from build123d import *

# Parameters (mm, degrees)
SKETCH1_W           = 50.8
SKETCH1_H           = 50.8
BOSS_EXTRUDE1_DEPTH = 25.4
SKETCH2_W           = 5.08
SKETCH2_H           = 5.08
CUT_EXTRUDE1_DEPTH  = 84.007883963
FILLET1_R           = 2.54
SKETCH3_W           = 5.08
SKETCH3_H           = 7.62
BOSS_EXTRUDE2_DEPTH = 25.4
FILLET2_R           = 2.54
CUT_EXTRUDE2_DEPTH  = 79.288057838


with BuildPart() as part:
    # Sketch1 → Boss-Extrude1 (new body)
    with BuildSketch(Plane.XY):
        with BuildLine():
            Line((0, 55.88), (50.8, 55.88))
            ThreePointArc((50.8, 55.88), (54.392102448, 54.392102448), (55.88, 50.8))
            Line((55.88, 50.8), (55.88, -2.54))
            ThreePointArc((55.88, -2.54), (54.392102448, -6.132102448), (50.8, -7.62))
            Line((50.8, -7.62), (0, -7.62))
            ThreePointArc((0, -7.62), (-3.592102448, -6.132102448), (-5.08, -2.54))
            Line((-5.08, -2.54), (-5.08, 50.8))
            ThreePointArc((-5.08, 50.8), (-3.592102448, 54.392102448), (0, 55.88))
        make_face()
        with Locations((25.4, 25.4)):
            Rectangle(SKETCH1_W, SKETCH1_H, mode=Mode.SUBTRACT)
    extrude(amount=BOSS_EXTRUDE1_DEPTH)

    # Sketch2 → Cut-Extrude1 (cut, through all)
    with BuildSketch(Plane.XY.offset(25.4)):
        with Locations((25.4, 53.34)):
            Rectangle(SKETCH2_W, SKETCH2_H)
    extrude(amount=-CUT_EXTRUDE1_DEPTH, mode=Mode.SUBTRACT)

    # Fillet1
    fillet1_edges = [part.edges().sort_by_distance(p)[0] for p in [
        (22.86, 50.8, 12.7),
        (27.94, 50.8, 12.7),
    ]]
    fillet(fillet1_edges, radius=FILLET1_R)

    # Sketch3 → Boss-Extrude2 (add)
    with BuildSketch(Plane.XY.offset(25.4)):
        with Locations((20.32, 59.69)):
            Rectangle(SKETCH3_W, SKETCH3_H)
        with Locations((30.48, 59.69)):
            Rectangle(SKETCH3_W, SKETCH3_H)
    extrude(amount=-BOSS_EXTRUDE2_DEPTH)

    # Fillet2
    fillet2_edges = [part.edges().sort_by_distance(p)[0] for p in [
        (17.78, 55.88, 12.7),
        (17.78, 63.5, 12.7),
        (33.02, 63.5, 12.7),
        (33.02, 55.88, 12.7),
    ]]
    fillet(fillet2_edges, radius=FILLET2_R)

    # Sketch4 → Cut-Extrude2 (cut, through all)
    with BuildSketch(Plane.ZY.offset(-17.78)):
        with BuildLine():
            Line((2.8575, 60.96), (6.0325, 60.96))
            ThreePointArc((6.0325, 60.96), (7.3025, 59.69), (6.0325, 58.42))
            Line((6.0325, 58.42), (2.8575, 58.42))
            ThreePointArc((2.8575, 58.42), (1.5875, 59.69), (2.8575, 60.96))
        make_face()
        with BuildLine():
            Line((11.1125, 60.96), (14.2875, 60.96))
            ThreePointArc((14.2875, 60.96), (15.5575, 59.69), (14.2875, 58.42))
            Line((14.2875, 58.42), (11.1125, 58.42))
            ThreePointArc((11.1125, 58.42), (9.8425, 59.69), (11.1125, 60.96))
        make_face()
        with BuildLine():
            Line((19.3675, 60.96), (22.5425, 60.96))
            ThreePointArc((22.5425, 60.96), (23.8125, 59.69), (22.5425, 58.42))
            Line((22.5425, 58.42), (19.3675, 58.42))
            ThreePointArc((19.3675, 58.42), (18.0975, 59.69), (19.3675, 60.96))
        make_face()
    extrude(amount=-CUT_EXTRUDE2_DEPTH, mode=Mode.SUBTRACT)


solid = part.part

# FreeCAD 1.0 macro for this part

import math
import FreeCAD as App
import Part
import Sketcher

V = App.Vector
Q = App.Units.Quantity


def edges_at(feature, points):
    """Names of the edges that pass closest to the given points."""
    edges = feature.Shape.Edges
    near = lambda p: min(range(len(edges)), key=lambda i: edges[i].distToShape(Part.Vertex(*p))[0])
    return sorted({f"Edge{near(p) + 1}" for p in points})

doc = App.newDocument("Part")
params = doc.addObject("Spreadsheet::Sheet", "Params")
for row, (alias, value) in enumerate([
    ("sketch1_radius", "0.2 in"),
    ("sketch1_width", "2 in"),
    ("sketch1_height", "2.1 in"),
    ("pad1_length", "1 in"),
    ("sketch2_width", "0.2 in"),
    ("fillet_radius", "0.1 in"),
    ("sketch3_width", "0.2 in"),
    ("sketch3_height", "0.3 in"),
    ("pad2_length", "1 in"),
    ("fillet2_radius", "0.1 in"),
    ("sketch4_radius", "0.05 in"),
    ("sketch4_height", "0.125 in"),
], start=1):
    params.set(f"A{row}", alias)
    params.set(f"B{row}", "=" + value)
    params.setAlias(f"B{row}", alias)

body = doc.addObject("PartDesign::Body", "Body")

# Sketch on XY plane
sketch1 = doc.addObject("Sketcher::SketchObject", "Sketch")
body.addObject(sketch1)
sketch1.AttachmentSupport = (doc.XY_Plane, [""])
sketch1.MapMode = "FlatFace"
sketch1.addGeometry([
    Part.LineSegment(V(51, 56, 0), V(0, 56, 0)),  # 0
    Part.ArcOfCircle(Part.Circle(V(0, 51, 0), V(0, 0, 1), 5), math.radians(90), math.radians(180)),  # 1
    Part.LineSegment(V(-5, 51, 0), V(-5, -3, 0)),  # 2
    Part.ArcOfCircle(Part.Circle(V(0, -3, 0), V(0, 0, 1), 5), math.radians(-180), math.radians(-90)),  # 3
    Part.LineSegment(V(0, -8, 0), V(51, -8, 0)),  # 4
    Part.ArcOfCircle(Part.Circle(V(51, -3, 0), V(0, 0, 1), 5), math.radians(-90), math.radians(0)),  # 5
    Part.LineSegment(V(56, -3, 0), V(56, 51, 0)),  # 6
    Part.ArcOfCircle(Part.Circle(V(51, 51, 0), V(0, 0, 1), 5), math.radians(0), math.radians(90)),  # 7
    Part.LineSegment(V(0, 0, 0), V(0, 51, 0)),  # 8
    Part.LineSegment(V(0, 51, 0), V(51, 51, 0)),  # 9
    Part.LineSegment(V(51, 51, 0), V(51, 0, 0)),  # 10
    Part.LineSegment(V(51, 0, 0), V(0, 0, 0)),  # 11
], False)
sketch1.addConstraint([
    Sketcher.Constraint("Tangent", 0, 2, 1, 1),
    Sketcher.Constraint("Tangent", 1, 2, 2, 1),
    Sketcher.Constraint("Tangent", 2, 2, 3, 1),
    Sketcher.Constraint("Tangent", 3, 2, 4, 1),
    Sketcher.Constraint("Tangent", 4, 2, 5, 1),
    Sketcher.Constraint("Tangent", 5, 2, 6, 1),
    Sketcher.Constraint("Tangent", 6, 2, 7, 1),
    Sketcher.Constraint("Tangent", 7, 2, 0, 1),
    Sketcher.Constraint("Coincident", 8, 2, 9, 1),
    Sketcher.Constraint("Coincident", 9, 2, 10, 1),
    Sketcher.Constraint("Coincident", 10, 2, 11, 1),
    Sketcher.Constraint("Coincident", 11, 2, 8, 1),
    Sketcher.Constraint("Horizontal", 0),
    Sketcher.Constraint("Vertical", 2),
    Sketcher.Constraint("Horizontal", 4),
    Sketcher.Constraint("Vertical", 6),
    Sketcher.Constraint("Vertical", 8),
    Sketcher.Constraint("Horizontal", 9),
    Sketcher.Constraint("Vertical", 10),
    Sketcher.Constraint("Horizontal", 11),
    Sketcher.Constraint("Coincident", 11, 2, -1, 1),
    Sketcher.Constraint("Coincident", 8, 2, 1, 3),
    Sketcher.Constraint("Coincident", 9, 2, 7, 3),
    Sketcher.Constraint("Equal", 1, 3),
    Sketcher.Constraint("Equal", 3, 5),
    Sketcher.Constraint("Equal", 11, 8),
    Sketcher.Constraint("Radius", 1, Q("0.2 in")),
    Sketcher.Constraint("DistanceX", 0, 2, 0, 1, Q("2 in")),
    Sketcher.Constraint("DistanceY", 2, 2, 2, 1, Q("2.1 in")),
])
sketch1.setExpression("Constraints[26]", "Params.sketch1_radius")
sketch1.setExpression("Constraints[27]", "Params.sketch1_width")
sketch1.setExpression("Constraints[28]", "Params.sketch1_height")
pad1 = doc.addObject("PartDesign::Pad", "Pad")
body.addObject(pad1)
pad1.Profile = sketch1
pad1.setExpression("Length", "Params.pad1_length")

# Sketch on XY plane
sketch2 = doc.addObject("Sketcher::SketchObject", "Sketch001")
body.addObject(sketch2)
sketch2.AttachmentSupport = (doc.XY_Plane, [""])
sketch2.MapMode = "FlatFace"
sketch2.AttachmentOffset = App.Placement(V(0, 0, 1 * 25.4), App.Rotation())
sketch2.addGeometry([
    Part.LineSegment(V(23, 56, 0), V(23, 51, 0)),
    Part.LineSegment(V(23, 51, 0), V(28, 51, 0)),
    Part.LineSegment(V(28, 51, 0), V(28, 56, 0)),
    Part.LineSegment(V(28, 56, 0), V(23, 56, 0)),
], False)
sketch2.addConstraint([
    Sketcher.Constraint("Coincident", 0, 2, 1, 1),
    Sketcher.Constraint("Coincident", 1, 2, 2, 1),
    Sketcher.Constraint("Coincident", 2, 2, 3, 1),
    Sketcher.Constraint("Coincident", 3, 2, 0, 1),
    Sketcher.Constraint("Vertical", 0),
    Sketcher.Constraint("Horizontal", 1),
    Sketcher.Constraint("Vertical", 2),
    Sketcher.Constraint("Horizontal", 3),
    Sketcher.Constraint("Equal", 3, 0),
    Sketcher.Constraint("DistanceX", 1, 1, 1, 2, Q("0.2 in")),
    Sketcher.Constraint("DistanceY", -1, 1, 0, 2, Q("2 in")),
    Sketcher.Constraint("DistanceX", -1, 1, 0, 2, Q("0.9 in")),
])
sketch2.setExpression("Constraints[9]", "Params.sketch2_width")
pocket1 = doc.addObject("PartDesign::Pocket", "Pocket")
body.addObject(pocket1)
pocket1.Profile = sketch2
pocket1.Type = "ThroughAll"
doc.recompute()

fillet = doc.addObject("PartDesign::Fillet", "Fillet")
body.addObject(fillet)
fillet.Base = (pocket1, edges_at(pocket1, [(22.86, 50.8, 12.7), (27.94, 50.8, 12.7)]))
fillet.setExpression("Radius", "Params.fillet_radius")

# Sketch on XY plane
sketch3 = doc.addObject("Sketcher::SketchObject", "Sketch002")
body.addObject(sketch3)
sketch3.AttachmentSupport = (doc.XY_Plane, [""])
sketch3.MapMode = "FlatFace"
sketch3.AttachmentOffset = App.Placement(V(0, 0, 1 * 25.4), App.Rotation())
sketch3.addGeometry([
    Part.LineSegment(V(18, 64, 0), V(18, 56, 0)),  # 0
    Part.LineSegment(V(18, 56, 0), V(23, 56, 0)),  # 1
    Part.LineSegment(V(23, 56, 0), V(23, 64, 0)),  # 2
    Part.LineSegment(V(23, 64, 0), V(18, 64, 0)),  # 3
    Part.LineSegment(V(28, 64, 0), V(28, 56, 0)),  # 4
    Part.LineSegment(V(28, 56, 0), V(33, 56, 0)),  # 5
    Part.LineSegment(V(33, 56, 0), V(33, 64, 0)),  # 6
    Part.LineSegment(V(33, 64, 0), V(28, 64, 0)),  # 7
], False)
sketch3.addConstraint([
    Sketcher.Constraint("Coincident", 0, 2, 1, 1),
    Sketcher.Constraint("Coincident", 1, 2, 2, 1),
    Sketcher.Constraint("Coincident", 2, 2, 3, 1),
    Sketcher.Constraint("Coincident", 3, 2, 0, 1),
    Sketcher.Constraint("Coincident", 4, 2, 5, 1),
    Sketcher.Constraint("Coincident", 5, 2, 6, 1),
    Sketcher.Constraint("Coincident", 6, 2, 7, 1),
    Sketcher.Constraint("Coincident", 7, 2, 4, 1),
    Sketcher.Constraint("Vertical", 0),
    Sketcher.Constraint("Horizontal", 1),
    Sketcher.Constraint("Vertical", 2),
    Sketcher.Constraint("Horizontal", 3),
    Sketcher.Constraint("Vertical", 4),
    Sketcher.Constraint("Horizontal", 5),
    Sketcher.Constraint("Vertical", 6),
    Sketcher.Constraint("Horizontal", 7),
    Sketcher.Constraint("Horizontal", 1, 2, 4, 2),
    Sketcher.Constraint("Horizontal", 3, 2, 6, 2),
    Sketcher.Constraint("Equal", 3, 5),
    Sketcher.Constraint("DistanceX", 1, 1, 1, 2, Q("0.2 in")),
    Sketcher.Constraint("DistanceY", 0, 2, 0, 1, Q("0.3 in")),
    Sketcher.Constraint("DistanceX", -1, 1, 0, 2, Q("0.7 in")),
    Sketcher.Constraint("DistanceY", -1, 1, 0, 2, Q("2.2 in")),
    Sketcher.Constraint("DistanceX", -1, 1, 4, 2, Q("1.1 in")),
])
sketch3.setExpression("Constraints[19]", "Params.sketch3_width")
sketch3.setExpression("Constraints[20]", "Params.sketch3_height")
pad2 = doc.addObject("PartDesign::Pad", "Pad001")
body.addObject(pad2)
pad2.Profile = sketch3
pad2.setExpression("Length", "Params.pad2_length")
pad2.Reversed = True
doc.recompute()

fillet2 = doc.addObject("PartDesign::Fillet", "Fillet001")
body.addObject(fillet2)
fillet2.Base = (pad2, edges_at(pad2, [
    (17.78, 55.88, 12.7),
    (17.78, 63.5, 12.7),
    (33.02, 63.5, 12.7),
    (33.02, 55.88, 12.7),
]))
fillet2.setExpression("Radius", "Params.fillet2_radius")

# Sketch on YZ plane
sketch4 = doc.addObject("Sketcher::SketchObject", "Sketch003")
body.addObject(sketch4)
sketch4.AttachmentSupport = (doc.YZ_Plane, [""])
sketch4.MapMode = "FlatFace"
sketch4.AttachmentOffset = App.Placement(V(0, 0, 0.7 * 25.4), App.Rotation())
sketch4.addGeometry([
    Part.LineSegment(V(61, 6, 0), V(61, 2.9, 0)),  # 0
    Part.ArcOfCircle(Part.Circle(V(59.7, 2.9, 0), V(0, 0, 1), 1.3), math.radians(180), math.radians(360)),  # 1
    Part.LineSegment(V(58.4, 2.9, 0), V(58.4, 6, 0)),  # 2
    Part.ArcOfCircle(Part.Circle(V(59.7, 6, 0), V(0, 0, 1), 1.3), math.radians(0), math.radians(180)),  # 3
    Part.LineSegment(V(61, 14.3, 0), V(61, 11.1, 0)),  # 4
    Part.ArcOfCircle(Part.Circle(V(59.7, 11.1, 0), V(0, 0, 1), 1.3), math.radians(180), math.radians(360)),  # 5
    Part.LineSegment(V(58.4, 11.1, 0), V(58.4, 14.3, 0)),  # 6
    Part.ArcOfCircle(Part.Circle(V(59.7, 14.3, 0), V(0, 0, 1), 1.3), math.radians(0), math.radians(180)),  # 7
    Part.LineSegment(V(61, 22.5, 0), V(61, 19.4, 0)),  # 8
    Part.ArcOfCircle(Part.Circle(V(59.7, 19.4, 0), V(0, 0, 1), 1.3), math.radians(180), math.radians(360)),  # 9
    Part.LineSegment(V(58.4, 19.4, 0), V(58.4, 22.5, 0)),  # 10
    Part.ArcOfCircle(Part.Circle(V(59.7, 22.5, 0), V(0, 0, 1), 1.3), math.radians(0), math.radians(180)),  # 11
], False)
sketch4.addConstraint([
    Sketcher.Constraint("Tangent", 0, 2, 1, 2),
    Sketcher.Constraint("Tangent", 1, 1, 2, 1),
    Sketcher.Constraint("Tangent", 2, 2, 3, 2),
    Sketcher.Constraint("Tangent", 3, 1, 0, 1),
    Sketcher.Constraint("Tangent", 4, 2, 5, 2),
    Sketcher.Constraint("Tangent", 5, 1, 6, 1),
    Sketcher.Constraint("Tangent", 6, 2, 7, 2),
    Sketcher.Constraint("Tangent", 7, 1, 4, 1),
    Sketcher.Constraint("Tangent", 8, 2, 9, 2),
    Sketcher.Constraint("Tangent", 9, 1, 10, 1),
    Sketcher.Constraint("Tangent", 10, 2, 11, 2),
    Sketcher.Constraint("Tangent", 11, 1, 8, 1),
    Sketcher.Constraint("Vertical", 0),
    Sketcher.Constraint("Vertical", 2),
    Sketcher.Constraint("Vertical", 4),
    Sketcher.Constraint("Vertical", 6),
    Sketcher.Constraint("Vertical", 8),
    Sketcher.Constraint("Vertical", 10),
    Sketcher.Constraint("Equal", 3, 5),
    Sketcher.Constraint("Equal", 7, 9),
    Sketcher.Constraint("Vertical", 3, 3, 5, 3),
    Sketcher.Constraint("Vertical", 7, 3, 9, 3),
    Sketcher.Constraint("Equal", 2, 4),
    Sketcher.Constraint("Equal", 6, 8),
    Sketcher.Constraint("Radius", 1, Q("0.05 in")),
    Sketcher.Constraint("DistanceX", -1, 1, 0, 2, Q("2.4 in")),
    Sketcher.Constraint("DistanceY", 3, 3, 5, 3, Q("0.2 in")),
    Sketcher.Constraint("DistanceY", 7, 3, 9, 3, Q("0.2 in")),
    Sketcher.Constraint("DistanceY", 0, 2, 0, 1, Q("0.125 in")),
    Sketcher.Constraint("DistanceY", -1, 1, 5, 3, Q("0.4375 in")),
])
sketch4.setExpression("Constraints[24]", "Params.sketch4_radius")
sketch4.setExpression("Constraints[28]", "Params.sketch4_height")
pocket2 = doc.addObject("PartDesign::Pocket", "Pocket001")
body.addObject(pocket2)
pocket2.Profile = sketch4
pocket2.Type = "ThroughAll"
pocket2.Reversed = True

doc.recompute()
